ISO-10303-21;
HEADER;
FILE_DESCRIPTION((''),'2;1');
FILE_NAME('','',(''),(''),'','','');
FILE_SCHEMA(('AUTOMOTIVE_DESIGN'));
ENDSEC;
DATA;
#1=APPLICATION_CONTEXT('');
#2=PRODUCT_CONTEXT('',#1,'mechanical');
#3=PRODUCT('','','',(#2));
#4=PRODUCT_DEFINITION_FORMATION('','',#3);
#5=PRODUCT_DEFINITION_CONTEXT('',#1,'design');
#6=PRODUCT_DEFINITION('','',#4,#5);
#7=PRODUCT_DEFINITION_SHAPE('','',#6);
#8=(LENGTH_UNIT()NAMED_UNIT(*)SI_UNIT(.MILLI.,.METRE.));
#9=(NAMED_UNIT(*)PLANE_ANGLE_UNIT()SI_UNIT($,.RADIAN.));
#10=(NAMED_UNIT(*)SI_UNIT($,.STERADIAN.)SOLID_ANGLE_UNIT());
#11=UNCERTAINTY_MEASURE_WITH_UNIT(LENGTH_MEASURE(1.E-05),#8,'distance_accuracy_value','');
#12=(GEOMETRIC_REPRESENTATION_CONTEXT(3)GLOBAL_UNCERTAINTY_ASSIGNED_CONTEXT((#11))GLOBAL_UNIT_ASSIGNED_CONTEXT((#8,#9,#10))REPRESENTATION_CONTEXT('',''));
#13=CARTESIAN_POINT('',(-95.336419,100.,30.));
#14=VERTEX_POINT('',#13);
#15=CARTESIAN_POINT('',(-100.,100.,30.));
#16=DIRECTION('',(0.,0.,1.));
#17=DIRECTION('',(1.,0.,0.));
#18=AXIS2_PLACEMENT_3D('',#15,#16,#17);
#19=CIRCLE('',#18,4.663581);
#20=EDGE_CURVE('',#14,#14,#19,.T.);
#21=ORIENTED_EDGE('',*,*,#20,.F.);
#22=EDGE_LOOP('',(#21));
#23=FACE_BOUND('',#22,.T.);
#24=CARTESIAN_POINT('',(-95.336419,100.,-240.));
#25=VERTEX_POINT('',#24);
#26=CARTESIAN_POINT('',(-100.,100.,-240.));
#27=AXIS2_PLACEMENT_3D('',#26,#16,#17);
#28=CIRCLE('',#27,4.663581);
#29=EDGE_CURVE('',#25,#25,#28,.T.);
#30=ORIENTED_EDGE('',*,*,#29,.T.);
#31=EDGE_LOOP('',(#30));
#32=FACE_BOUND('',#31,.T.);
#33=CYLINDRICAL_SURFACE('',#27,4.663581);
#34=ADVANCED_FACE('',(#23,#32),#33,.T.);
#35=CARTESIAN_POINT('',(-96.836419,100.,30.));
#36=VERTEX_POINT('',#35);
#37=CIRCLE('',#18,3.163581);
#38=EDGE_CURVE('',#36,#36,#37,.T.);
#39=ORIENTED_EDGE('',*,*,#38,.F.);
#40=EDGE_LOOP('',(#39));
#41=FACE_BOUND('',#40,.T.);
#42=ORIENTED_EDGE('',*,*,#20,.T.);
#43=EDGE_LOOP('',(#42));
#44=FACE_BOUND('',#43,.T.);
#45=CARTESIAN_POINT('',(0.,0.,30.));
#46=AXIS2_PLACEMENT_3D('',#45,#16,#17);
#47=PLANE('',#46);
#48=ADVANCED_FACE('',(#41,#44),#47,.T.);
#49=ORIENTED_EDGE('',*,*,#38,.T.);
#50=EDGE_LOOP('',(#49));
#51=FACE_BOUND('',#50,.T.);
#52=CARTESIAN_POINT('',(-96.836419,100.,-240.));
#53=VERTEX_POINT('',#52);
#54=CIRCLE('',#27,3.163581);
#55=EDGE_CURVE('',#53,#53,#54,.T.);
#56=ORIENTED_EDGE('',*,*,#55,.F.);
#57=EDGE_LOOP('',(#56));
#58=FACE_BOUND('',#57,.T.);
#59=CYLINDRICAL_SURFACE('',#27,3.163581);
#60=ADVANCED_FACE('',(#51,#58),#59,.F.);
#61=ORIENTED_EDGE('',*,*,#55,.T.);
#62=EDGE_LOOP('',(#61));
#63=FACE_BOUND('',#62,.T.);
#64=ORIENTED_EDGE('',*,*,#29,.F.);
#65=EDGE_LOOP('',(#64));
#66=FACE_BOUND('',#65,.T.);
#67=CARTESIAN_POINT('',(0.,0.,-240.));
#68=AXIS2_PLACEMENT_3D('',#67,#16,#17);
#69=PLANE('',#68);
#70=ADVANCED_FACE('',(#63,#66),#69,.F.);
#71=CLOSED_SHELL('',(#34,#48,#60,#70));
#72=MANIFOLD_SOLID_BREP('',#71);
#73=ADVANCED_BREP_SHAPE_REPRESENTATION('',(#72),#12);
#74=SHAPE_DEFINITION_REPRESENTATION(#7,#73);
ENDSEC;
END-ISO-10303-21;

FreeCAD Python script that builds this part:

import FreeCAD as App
import Part
import Sketcher
from FreeCAD import Vector

doc = App.newDocument("Part")
params = doc.addObject("Spreadsheet::Sheet", "Params")
for row, (alias, value) in enumerate([
    ("pad1_length", "30 mm"),
    ("pad1_length2", "240 mm"),
], start=1):
    params.set(f"A{row}", alias)
    params.set(f"B{row}", "=" + value)
    params.setAlias(f"B{row}", alias)

body = doc.addObject("PartDesign::Body", "Body")

# Sketch on XY plane
sketch1 = body.newObject("Sketcher::SketchObject", "Sketch")
sketch1.AttachmentSupport = (doc.getObject("XY_Plane"), [""])
sketch1.MapMode = "FlatFace"
sketch1.addGeometry(Part.Circle(Vector(-100, 100, 0), Vector(0, 0, 1), 4.663581), False)
sketch1.addGeometry(Part.Circle(Vector(-100, 100, 0), Vector(0, 0, 1), 3.163581), False)
sketch1.addConstraint(Sketcher.Constraint("Coincident", 1, 3, 0, 3))
sketch1.addConstraint(Sketcher.Constraint("DistanceX", 0, 3, -1, 1, 100.0))
sketch1.addConstraint(Sketcher.Constraint("DistanceY", -1, 1, 0, 3, 100.0))
sketch1.addConstraint(Sketcher.Constraint("Diameter", 0, 9.327162))
sketch1.addConstraint(Sketcher.Constraint("Diameter", 1, 6.327162))
pad1 = body.newObject("PartDesign::Pad", "Pad")
pad1.Profile = sketch1
pad1.Type = "TwoLengths"
pad1.setExpression("Length", "Params.pad1_length")
pad1.setExpression("Length2", "Params.pad1_length2")

doc.recompute()
